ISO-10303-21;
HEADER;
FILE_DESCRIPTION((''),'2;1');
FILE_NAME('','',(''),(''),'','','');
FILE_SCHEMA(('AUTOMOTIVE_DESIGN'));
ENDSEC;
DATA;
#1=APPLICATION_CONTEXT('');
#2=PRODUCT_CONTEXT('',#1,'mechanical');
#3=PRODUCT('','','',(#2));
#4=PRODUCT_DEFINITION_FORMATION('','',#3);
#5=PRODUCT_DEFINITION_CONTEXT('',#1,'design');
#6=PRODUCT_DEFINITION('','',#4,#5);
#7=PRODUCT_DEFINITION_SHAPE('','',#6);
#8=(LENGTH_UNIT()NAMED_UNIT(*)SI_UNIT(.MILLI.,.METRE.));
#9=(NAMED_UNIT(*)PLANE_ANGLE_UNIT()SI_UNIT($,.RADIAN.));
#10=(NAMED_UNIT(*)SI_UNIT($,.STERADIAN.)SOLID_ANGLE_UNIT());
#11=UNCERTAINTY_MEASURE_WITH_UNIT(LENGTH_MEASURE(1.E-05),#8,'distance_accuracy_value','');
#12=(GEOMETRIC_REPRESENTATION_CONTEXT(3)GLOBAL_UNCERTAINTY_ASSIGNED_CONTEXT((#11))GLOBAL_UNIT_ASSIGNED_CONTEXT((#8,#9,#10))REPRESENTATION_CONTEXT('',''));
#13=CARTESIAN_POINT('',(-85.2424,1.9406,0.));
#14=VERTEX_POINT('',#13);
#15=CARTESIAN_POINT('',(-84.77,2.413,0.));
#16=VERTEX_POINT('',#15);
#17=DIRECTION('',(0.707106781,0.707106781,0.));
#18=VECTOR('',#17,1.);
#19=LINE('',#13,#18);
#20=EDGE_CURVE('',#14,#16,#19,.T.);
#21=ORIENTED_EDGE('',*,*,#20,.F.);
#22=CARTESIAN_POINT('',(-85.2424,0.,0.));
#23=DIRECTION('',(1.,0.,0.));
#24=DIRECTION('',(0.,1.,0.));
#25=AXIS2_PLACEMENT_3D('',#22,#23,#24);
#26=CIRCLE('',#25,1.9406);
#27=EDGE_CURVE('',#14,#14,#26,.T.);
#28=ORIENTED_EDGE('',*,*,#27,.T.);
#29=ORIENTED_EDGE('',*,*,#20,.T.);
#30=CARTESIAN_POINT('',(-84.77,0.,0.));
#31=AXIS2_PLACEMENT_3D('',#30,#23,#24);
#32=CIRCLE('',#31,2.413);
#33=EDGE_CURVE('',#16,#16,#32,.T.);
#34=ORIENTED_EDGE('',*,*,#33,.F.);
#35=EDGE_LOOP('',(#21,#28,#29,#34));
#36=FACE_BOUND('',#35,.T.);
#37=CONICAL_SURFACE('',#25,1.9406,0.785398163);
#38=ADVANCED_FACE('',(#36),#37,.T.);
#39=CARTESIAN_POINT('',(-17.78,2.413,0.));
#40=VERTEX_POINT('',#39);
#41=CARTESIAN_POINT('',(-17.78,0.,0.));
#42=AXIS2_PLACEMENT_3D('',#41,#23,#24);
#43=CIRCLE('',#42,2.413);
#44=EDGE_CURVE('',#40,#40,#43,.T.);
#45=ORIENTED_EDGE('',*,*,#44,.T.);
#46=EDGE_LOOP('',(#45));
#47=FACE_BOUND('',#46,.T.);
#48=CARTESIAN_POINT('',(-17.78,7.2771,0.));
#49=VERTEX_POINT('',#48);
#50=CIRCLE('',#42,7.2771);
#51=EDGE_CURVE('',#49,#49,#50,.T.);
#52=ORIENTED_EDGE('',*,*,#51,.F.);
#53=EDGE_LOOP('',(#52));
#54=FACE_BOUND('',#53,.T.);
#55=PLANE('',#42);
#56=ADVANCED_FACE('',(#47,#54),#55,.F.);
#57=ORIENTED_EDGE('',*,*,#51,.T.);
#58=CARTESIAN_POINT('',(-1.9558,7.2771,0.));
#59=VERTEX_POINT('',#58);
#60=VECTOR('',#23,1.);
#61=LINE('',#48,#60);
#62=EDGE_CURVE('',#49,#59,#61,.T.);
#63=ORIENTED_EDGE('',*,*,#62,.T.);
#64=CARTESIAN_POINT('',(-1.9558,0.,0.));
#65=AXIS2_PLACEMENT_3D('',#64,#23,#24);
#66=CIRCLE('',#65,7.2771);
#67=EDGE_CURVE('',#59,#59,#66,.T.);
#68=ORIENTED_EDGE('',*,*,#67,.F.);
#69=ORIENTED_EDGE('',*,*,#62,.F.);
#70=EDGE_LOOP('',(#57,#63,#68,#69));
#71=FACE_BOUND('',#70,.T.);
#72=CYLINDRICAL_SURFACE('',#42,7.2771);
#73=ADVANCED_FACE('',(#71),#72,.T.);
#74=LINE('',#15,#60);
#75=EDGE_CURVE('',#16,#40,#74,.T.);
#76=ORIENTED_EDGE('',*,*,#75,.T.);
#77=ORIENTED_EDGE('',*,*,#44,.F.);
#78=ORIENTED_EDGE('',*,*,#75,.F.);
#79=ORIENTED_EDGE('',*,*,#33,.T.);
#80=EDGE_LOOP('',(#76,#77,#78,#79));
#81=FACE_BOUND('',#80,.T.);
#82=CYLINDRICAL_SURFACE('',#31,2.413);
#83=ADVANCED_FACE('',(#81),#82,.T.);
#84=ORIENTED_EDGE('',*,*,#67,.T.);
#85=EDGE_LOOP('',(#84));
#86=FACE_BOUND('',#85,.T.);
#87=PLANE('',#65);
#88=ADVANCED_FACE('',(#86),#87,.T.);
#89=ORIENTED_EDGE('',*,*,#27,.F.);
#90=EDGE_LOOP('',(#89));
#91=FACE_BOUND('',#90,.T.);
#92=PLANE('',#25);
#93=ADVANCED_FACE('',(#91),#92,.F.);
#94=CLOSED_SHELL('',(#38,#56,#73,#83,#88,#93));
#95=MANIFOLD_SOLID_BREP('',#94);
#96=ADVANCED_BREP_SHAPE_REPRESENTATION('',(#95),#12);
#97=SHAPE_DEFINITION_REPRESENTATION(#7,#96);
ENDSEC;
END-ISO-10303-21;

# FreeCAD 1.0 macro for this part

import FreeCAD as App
import Part
import Sketcher
Q = App.Units.Quantity

doc = App.newDocument("Part")
body = doc.addObject("PartDesign::Body", "Body")

# Sketch on XY plane
sketch1 = body.newObject("Sketcher::SketchObject", "Sketch")
sketch1.AttachmentSupport = (doc.getObject("XY_Plane"), [""])
sketch1.MapMode = "FlatFace"
sketch1.addGeometry([
    Part.LineSegment(App.Vector(-85.2, 0, 0), App.Vector(-9.5, 0, 0)),  # 0
    Part.LineSegment(App.Vector(-9.5, 0, 0), App.Vector(-9.5, 2.4, 0)),  # 1
    Part.LineSegment(App.Vector(-9.5, 2.4, 0), App.Vector(-84.8, 2.4, 0)),  # 2
    Part.LineSegment(App.Vector(-84.8, 2.4, 0), App.Vector(-85.2, 1.9, 0)),  # 3
    Part.LineSegment(App.Vector(-85.2, 1.9, 0), App.Vector(-85.2, 0, 0)),  # 4
], False)
sketch1.addConstraint([
    Sketcher.Constraint("Coincident", 0, 2, 1, 1),
    Sketcher.Constraint("Coincident", 1, 2, 2, 1),
    Sketcher.Constraint("Coincident", 2, 2, 3, 1),
    Sketcher.Constraint("Coincident", 3, 2, 4, 1),
    Sketcher.Constraint("Coincident", 4, 2, 0, 1),
    Sketcher.Constraint("Horizontal", 0),
    Sketcher.Constraint("Vertical", 1),
    Sketcher.Constraint("Horizontal", 2),
    Sketcher.Constraint("Vertical", 4),
    Sketcher.Constraint("PointOnObject", 0, 2, -1),
    Sketcher.Constraint("Angle", 3, Q("-135 deg")),
    Sketcher.Constraint("DistanceX", 0, 1, 0, 2, Q("2.981 in")),
    Sketcher.Constraint("DistanceY", 1, 1, 1, 2, Q("0.095 in")),
    Sketcher.Constraint("DistanceX", 2, 2, 2, 1, Q("2.9624 in")),
    Sketcher.Constraint("DistanceX", 0, 2, -1, 1, Q("0.375 in")),
])
revolution = body.newObject("PartDesign::Revolution", "Revolution")
revolution.Profile = sketch1
revolution.ReferenceAxis = (sketch1, ["H_Axis"])
revolution.Angle = 360

# Sketch on XY plane
sketch2 = body.newObject("Sketcher::SketchObject", "Sketch001")
sketch2.AttachmentSupport = (doc.getObject("XY_Plane"), [""])
sketch2.MapMode = "FlatFace"
sketch2.addGeometry([
    Part.LineSegment(App.Vector(-18, 0, 0), App.Vector(-2, 0, 0)),
    Part.LineSegment(App.Vector(-2, 0, 0), App.Vector(-2, 7, 0)),
    Part.LineSegment(App.Vector(-2, 7, 0), App.Vector(-18, 7, 0)),
    Part.LineSegment(App.Vector(-18, 7, 0), App.Vector(-18, 0, 0)),
], False)
sketch2.addConstraint([
    Sketcher.Constraint("Coincident", 0, 2, 1, 1),
    Sketcher.Constraint("Coincident", 1, 2, 2, 1),
    Sketcher.Constraint("Coincident", 2, 2, 3, 1),
    Sketcher.Constraint("Coincident", 3, 2, 0, 1),
    Sketcher.Constraint("Horizontal", 0),
    Sketcher.Constraint("Vertical", 1),
    Sketcher.Constraint("Horizontal", 2),
    Sketcher.Constraint("Vertical", 3),
    Sketcher.Constraint("PointOnObject", 0, 2, -1),
    Sketcher.Constraint("DistanceX", 2, 2, -1, 1, Q("0.7 in")),
    Sketcher.Constraint("DistanceX", 0, 1, 0, 2, Q("0.623 in")),
    Sketcher.Constraint("DistanceY", 1, 1, 1, 2, Q("0.2865 in")),
])
revolution2 = body.newObject("PartDesign::Revolution", "Revolution001")
revolution2.Profile = sketch2
revolution2.ReferenceAxis = (sketch2, ["H_Axis"])
revolution2.Angle = 360

doc.recompute()
